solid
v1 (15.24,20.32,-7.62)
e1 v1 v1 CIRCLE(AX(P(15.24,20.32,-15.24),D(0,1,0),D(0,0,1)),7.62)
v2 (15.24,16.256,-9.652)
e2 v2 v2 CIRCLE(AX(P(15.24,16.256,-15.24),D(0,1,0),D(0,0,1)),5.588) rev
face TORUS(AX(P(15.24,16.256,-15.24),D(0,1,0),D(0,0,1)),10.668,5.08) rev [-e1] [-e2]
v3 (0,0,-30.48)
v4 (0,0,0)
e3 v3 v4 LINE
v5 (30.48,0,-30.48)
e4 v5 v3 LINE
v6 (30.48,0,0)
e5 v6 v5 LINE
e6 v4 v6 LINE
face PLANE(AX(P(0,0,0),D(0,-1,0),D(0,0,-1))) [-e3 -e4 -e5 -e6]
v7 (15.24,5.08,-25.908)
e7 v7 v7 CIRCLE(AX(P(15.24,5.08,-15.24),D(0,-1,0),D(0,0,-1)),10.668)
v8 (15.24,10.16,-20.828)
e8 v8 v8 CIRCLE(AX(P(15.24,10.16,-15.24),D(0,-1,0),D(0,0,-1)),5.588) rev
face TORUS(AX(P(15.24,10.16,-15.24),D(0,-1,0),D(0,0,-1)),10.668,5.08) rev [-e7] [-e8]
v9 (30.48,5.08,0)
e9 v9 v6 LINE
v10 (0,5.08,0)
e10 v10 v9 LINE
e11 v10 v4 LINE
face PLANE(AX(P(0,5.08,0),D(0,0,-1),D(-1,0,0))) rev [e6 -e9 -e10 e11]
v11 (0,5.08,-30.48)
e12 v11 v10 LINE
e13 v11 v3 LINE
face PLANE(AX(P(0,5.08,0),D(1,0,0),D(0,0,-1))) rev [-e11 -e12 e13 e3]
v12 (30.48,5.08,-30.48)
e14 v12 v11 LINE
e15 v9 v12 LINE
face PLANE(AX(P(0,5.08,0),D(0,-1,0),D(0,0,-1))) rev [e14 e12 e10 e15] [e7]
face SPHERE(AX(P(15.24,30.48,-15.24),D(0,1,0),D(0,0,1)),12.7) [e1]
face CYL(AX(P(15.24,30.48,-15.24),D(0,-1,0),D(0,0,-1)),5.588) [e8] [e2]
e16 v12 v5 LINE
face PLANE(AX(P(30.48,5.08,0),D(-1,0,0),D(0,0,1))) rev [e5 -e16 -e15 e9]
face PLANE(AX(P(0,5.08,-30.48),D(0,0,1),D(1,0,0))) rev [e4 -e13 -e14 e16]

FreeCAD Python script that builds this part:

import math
import FreeCAD as App
import Part
import Sketcher
from FreeCAD import Vector
Q = App.Units.Quantity


def edges_at(feature, points):
    """Names of the edges that pass closest to the given points."""
    edges = feature.Shape.Edges
    near = lambda p: min(range(len(edges)), key=lambda i: edges[i].distToShape(Part.Vertex(*p))[0])
    return sorted({f"Edge{near(p) + 1}" for p in points})


def add_polygon(sketch, points):
    """Adds a closed chain of lines whose ends are joined by coincident constraints."""
    first, n = sketch.GeometryCount, len(points)
    for a, b in zip(points, points[1:] + points[:1]):
        sketch.addGeometry(Part.LineSegment(App.Vector(*a, 0), App.Vector(*b, 0)), False)
    for i in range(n):
        sketch.addConstraint(Sketcher.Constraint("Coincident", first + i, 2, first + (i + 1) % n, 1))

doc = App.newDocument("Part")
body = doc.addObject("PartDesign::Body", "Body")

# Sketch on XZ plane
sketch1 = body.newObject("Sketcher::SketchObject", "Sketch")
sketch1.AttachmentSupport = (doc.getObject("XZ_Plane"), [""])
sketch1.MapMode = "FlatFace"
add_polygon(sketch1, [(0, -30), (0, 0), (30, 0), (30, -30)])  # lines 0-3
sketch1.addConstraint([
    Sketcher.Constraint("Vertical", 0),
    Sketcher.Constraint("Horizontal", 1),
    Sketcher.Constraint("Vertical", 2),
    Sketcher.Constraint("Horizontal", 3),
    Sketcher.Constraint("Coincident", 0, 2, -1, 1),
    Sketcher.Constraint("Equal", 3, 0),
    Sketcher.Constraint("DistanceX", 1, 1, 1, 2, Q("1.2 in")),
])
pad1 = body.newObject("PartDesign::Pad", "Pad")
pad1.Profile = sketch1
pad1.Length = Q("0.2 in")
pad1.Reversed = True

# Sketch on XZ plane
sketch2 = body.newObject("Sketcher::SketchObject", "Sketch001")
sketch2.AttachmentSupport = (doc.getObject("XZ_Plane"), [""])
sketch2.MapMode = "FlatFace"
sketch2.AttachmentOffset = App.Placement(Vector(0, 0, -0.2 * 25.4), App.Rotation())
sketch2.addGeometry(Part.Circle(Vector(15, -15, 0), Vector(0, 0, 1), 6), False)
sketch2.addConstraint([
    Sketcher.Constraint("Diameter", 0, Q("0.44 in")),
    Sketcher.Constraint("DistanceX", -1, 1, 0, 3, Q("0.6 in")),
    Sketcher.Constraint("DistanceY", 0, 3, -1, 1, Q("0.6 in")),
])
pad2 = body.newObject("PartDesign::Pad", "Pad001")
pad2.Profile = sketch2
pad2.Length = Q("1 in")
pad2.Reversed = True

# Sketch on XZ plane
sketch3 = body.newObject("Sketcher::SketchObject", "Sketch002")
sketch3.AttachmentSupport = (doc.getObject("XZ_Plane"), [""])
sketch3.MapMode = "FlatFace"
sketch3.AttachmentOffset = App.Placement(Vector(0, 0, -1.2 * 25.4), App.Rotation())
sketch3.addGeometry([
    Part.LineSegment(Vector(15, -28, 0), Vector(15, -3, 0)),
    Part.ArcOfCircle(Part.Circle(Vector(15, -15, 0), Vector(0, 0, 1), 13), math.radians(-90), math.radians(90)),
], False)
sketch3.addGeometry(Part.LineSegment(Vector(15, -28, 0), Vector(15, -3, 0)), True)  # axis
sketch3.addConstraint([
    Sketcher.Constraint("Coincident", 0, 1, 1, 1),
    Sketcher.Constraint("Coincident", 1, 2, 0, 2),
    Sketcher.Constraint("Vertical", 0),
    Sketcher.Constraint("Vertical", 2),
    Sketcher.Constraint("Coincident", 2, 1, 0, 1),
    Sketcher.Constraint("Vertical", 1, 3, 0, 1),
    Sketcher.Constraint("Equal", 0, 2),
    Sketcher.Constraint("Radius", 1, Q("0.5 in")),
    Sketcher.Constraint("DistanceX", -1, 1, 1, 3, Q("0.6 in")),
    Sketcher.Constraint("DistanceY", 1, 3, -1, 1, Q("0.6 in")),
])
revolution = body.newObject("PartDesign::Revolution", "Revolution")
revolution.Profile = sketch3
revolution.ReferenceAxis = (sketch3, ["Axis0"])
revolution.Angle = 360
doc.recompute()

fillet = body.newObject("PartDesign::Fillet", "Fillet")
fillet.Base = (revolution, edges_at(revolution, [(15.24, 5.08, -20.828), (15.24, 19.075, -20.828)]))
fillet.Radius = Q("0.2 in")

doc.recompute()
